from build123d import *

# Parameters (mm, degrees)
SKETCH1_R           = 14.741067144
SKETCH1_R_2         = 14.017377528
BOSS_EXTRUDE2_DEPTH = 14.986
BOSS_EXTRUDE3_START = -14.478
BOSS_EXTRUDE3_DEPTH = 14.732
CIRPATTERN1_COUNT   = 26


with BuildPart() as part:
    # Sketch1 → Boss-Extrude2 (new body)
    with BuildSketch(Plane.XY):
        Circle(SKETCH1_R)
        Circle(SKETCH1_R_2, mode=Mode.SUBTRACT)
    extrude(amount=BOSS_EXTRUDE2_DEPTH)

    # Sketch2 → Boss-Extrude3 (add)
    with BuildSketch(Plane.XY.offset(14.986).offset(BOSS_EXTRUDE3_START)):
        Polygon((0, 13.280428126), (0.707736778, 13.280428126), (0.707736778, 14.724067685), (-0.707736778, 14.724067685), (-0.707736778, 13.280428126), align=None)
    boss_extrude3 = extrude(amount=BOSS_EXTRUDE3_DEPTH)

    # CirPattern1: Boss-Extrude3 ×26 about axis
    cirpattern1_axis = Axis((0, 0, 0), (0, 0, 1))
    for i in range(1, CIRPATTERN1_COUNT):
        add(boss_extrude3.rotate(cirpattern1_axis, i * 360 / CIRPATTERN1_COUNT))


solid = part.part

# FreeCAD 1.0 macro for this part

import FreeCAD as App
import Part
import Sketcher

V = App.Vector
Q = App.Units.Quantity


def add_polygon(sketch, points):
    """Adds a closed chain of lines whose ends are joined by coincident constraints."""
    first, n = sketch.GeometryCount, len(points)
    for a, b in zip(points, points[1:] + points[:1]):
        sketch.addGeometry(Part.LineSegment(App.Vector(*a, 0), App.Vector(*b, 0)), False)
    for i in range(n):
        sketch.addConstraint(Sketcher.Constraint("Coincident", first + i, 2, first + (i + 1) % n, 1))

doc = App.newDocument("Part")
params = doc.addObject("Spreadsheet::Sheet", "Params")
for row, (alias, value) in enumerate([
    ("pad1_length", "0.59 in"),
    ("pad2_length", "0.58 in"),
], start=1):
    params.set(f"A{row}", alias)
    params.set(f"B{row}", "=" + value)
    params.setAlias(f"B{row}", alias)

body = doc.addObject("PartDesign::Body", "Body")

sketch1 = body.newObject("Sketcher::SketchObject", "Sketch")
sketch1.AttachmentSupport = (doc.getObject("XY_Plane"), [""])
sketch1.MapMode = "FlatFace"
sketch1.addGeometry([
    Part.Circle(V(0, 0, 0), V(0, 0, 1), 15),
    Part.Circle(V(0, 0, 0), V(0, 0, 1), 14),
], False)
sketch1.addConstraint([
    Sketcher.Constraint("Coincident", 0, 3, -1, 1),
    Sketcher.Constraint("Coincident", 1, 3, -1, 1),
    Sketcher.Constraint("Diameter", 0, Q("29.482134 mm")),
    Sketcher.Constraint("Diameter", 1, Q("28.034755 mm")),
])
pad1 = body.newObject("PartDesign::Pad", "Pad")
pad1.Profile = sketch1
pad1.setExpression("Length", "Params.pad1_length")

sketch2 = body.newObject("Sketcher::SketchObject", "Sketch001")
sketch2.AttachmentSupport = (doc.getObject("XY_Plane"), [""])
sketch2.MapMode = "FlatFace"
sketch2.AttachmentOffset = App.Placement(V(0, 0, 0.02 * 25.4), App.Rotation())
add_polygon(sketch2, [(0.7, 13.3), (0.7, 14.7), (-0.7, 14.7), (-0.7, 13.3)])
sketch2.addConstraint([
    Sketcher.Constraint("Vertical", 0),
    Sketcher.Constraint("Horizontal", 1),
    Sketcher.Constraint("Vertical", 2),
    Sketcher.Constraint("Horizontal", 3),
    Sketcher.Constraint("DistanceY", 0, 1, 0, 2, Q("1.44364 mm")),
    Sketcher.Constraint("DistanceX", 1, 2, 1, 1, Q("1.415474 mm")),
    Sketcher.Constraint("DistanceY", -1, 1, 2, 2, Q("13.280428 mm")),
    Sketcher.Constraint("DistanceX", -1, 1, 0, 2, Q("0.707737 mm")),
])
pad2 = body.newObject("PartDesign::Pad", "Pad001")
pad2.Profile = sketch2
pad2.setExpression("Length", "Params.pad2_length")
doc.recompute()

polarpattern = body.newObject("PartDesign::PolarPattern", "PolarPattern")
polarpattern.Originals = [pad2]
polarpattern.Axis = (doc.getObject("Z_Axis"), [""])
polarpattern.Angle = 360
polarpattern.Occurrences = 26
body.Tip = polarpattern

doc.recompute()
